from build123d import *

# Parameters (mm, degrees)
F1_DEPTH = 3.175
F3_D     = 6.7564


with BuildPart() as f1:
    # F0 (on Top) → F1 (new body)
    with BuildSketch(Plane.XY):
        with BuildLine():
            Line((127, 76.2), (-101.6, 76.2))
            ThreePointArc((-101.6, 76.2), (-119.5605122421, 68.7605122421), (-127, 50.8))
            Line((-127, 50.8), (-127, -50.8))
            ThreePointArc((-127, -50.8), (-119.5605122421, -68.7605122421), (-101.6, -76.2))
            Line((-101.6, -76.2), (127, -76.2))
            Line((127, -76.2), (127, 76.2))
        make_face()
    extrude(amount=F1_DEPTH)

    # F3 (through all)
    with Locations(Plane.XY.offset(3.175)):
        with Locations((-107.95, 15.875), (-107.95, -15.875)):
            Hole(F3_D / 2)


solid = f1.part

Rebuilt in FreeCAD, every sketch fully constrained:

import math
import FreeCAD as App
import Part
import Sketcher
from FreeCAD import Vector
Q = App.Units.Quantity

doc = App.newDocument("Part")
body = doc.addObject("PartDesign::Body", "Body")

# Sketch on XY plane
sketch1 = body.newObject("Sketcher::SketchObject", "Sketch")
sketch1.AttachmentSupport = (doc.getObject("XY_Plane"), [""])
sketch1.MapMode = "FlatFace"
sketch1.addGeometry([
    Part.LineSegment(Vector(127, 76, 0), Vector(-102, 76, 0)),  # 0
    Part.ArcOfCircle(Part.Circle(Vector(-102, 51, 0), Vector(0, 0, 1), 25), math.radians(90), math.radians(180)),  # 1
    Part.LineSegment(Vector(-127, 51, 0), Vector(-127, -51, 0)),  # 2
    Part.ArcOfCircle(Part.Circle(Vector(-102, -51, 0), Vector(0, 0, 1), 25), math.radians(180), math.radians(270)),  # 3
    Part.LineSegment(Vector(-102, -76, 0), Vector(127, -76, 0)),  # 4
    Part.LineSegment(Vector(127, -76, 0), Vector(127, 76, 0)),  # 5
], False)
sketch1.addConstraint([
    Sketcher.Constraint("Tangent", 0, 2, 1, 1),
    Sketcher.Constraint("Tangent", 1, 2, 2, 1),
    Sketcher.Constraint("Tangent", 2, 2, 3, 1),
    Sketcher.Constraint("Tangent", 3, 2, 4, 1),
    Sketcher.Constraint("Coincident", 4, 2, 5, 1),
    Sketcher.Constraint("Coincident", 5, 2, 0, 1),
    Sketcher.Constraint("Horizontal", 0),
    Sketcher.Constraint("Vertical", 2),
    Sketcher.Constraint("Horizontal", 4),
    Sketcher.Constraint("Vertical", 5),
    Sketcher.Constraint("Equal", 1, 3),
    Sketcher.Constraint("Radius", 1, Q("1 in")),
    Sketcher.Constraint("DistanceX", 0, 2, 0, 1, Q("9 in")),
    Sketcher.Constraint("DistanceY", 2, 2, 2, 1, Q("4 in")),
    Sketcher.Constraint("DistanceX", 1, 3, -1, 1, Q("4 in")),
    Sketcher.Constraint("DistanceY", -1, 1, 1, 3, Q("2 in")),
])
pad1 = body.newObject("PartDesign::Pad", "Pad")
pad1.Profile = sketch1
pad1.Length = Q("0.125 in")

# Sketch on XY plane
sketch2 = body.newObject("Sketcher::SketchObject", "Sketch001")
sketch2.AttachmentSupport = (doc.getObject("XY_Plane"), [""])
sketch2.MapMode = "FlatFace"
sketch2.AttachmentOffset = App.Placement(Vector(0, 0, 0.125 * 25.4), App.Rotation())
sketch2.addGeometry([
    Part.Circle(Vector(-108, 15.9, 0), Vector(0, 0, 1), 3.4),
    Part.Circle(Vector(-108, -15.9, 0), Vector(0, 0, 1), 3.4),
], False)
sketch2.addConstraint([
    Sketcher.Constraint("Equal", 0, 1),
    Sketcher.Constraint("Symmetric", 0, 3, 1, 3, -1),
    Sketcher.Constraint("Diameter", 0, Q("0.266 in")),
    Sketcher.Constraint("DistanceX", 0, 3, -1, 1, Q("4.25 in")),
    Sketcher.Constraint("DistanceY", 1, 3, 0, 3, Q("1.25 in")),
])
doc.recompute()
hole = body.newObject("PartDesign::Hole", "Hole")
hole.Profile = sketch2
hole.ThreadType = "None"
hole.Diameter = Q("0.266 in")
hole.DepthType = "ThroughAll"

doc.recompute()
